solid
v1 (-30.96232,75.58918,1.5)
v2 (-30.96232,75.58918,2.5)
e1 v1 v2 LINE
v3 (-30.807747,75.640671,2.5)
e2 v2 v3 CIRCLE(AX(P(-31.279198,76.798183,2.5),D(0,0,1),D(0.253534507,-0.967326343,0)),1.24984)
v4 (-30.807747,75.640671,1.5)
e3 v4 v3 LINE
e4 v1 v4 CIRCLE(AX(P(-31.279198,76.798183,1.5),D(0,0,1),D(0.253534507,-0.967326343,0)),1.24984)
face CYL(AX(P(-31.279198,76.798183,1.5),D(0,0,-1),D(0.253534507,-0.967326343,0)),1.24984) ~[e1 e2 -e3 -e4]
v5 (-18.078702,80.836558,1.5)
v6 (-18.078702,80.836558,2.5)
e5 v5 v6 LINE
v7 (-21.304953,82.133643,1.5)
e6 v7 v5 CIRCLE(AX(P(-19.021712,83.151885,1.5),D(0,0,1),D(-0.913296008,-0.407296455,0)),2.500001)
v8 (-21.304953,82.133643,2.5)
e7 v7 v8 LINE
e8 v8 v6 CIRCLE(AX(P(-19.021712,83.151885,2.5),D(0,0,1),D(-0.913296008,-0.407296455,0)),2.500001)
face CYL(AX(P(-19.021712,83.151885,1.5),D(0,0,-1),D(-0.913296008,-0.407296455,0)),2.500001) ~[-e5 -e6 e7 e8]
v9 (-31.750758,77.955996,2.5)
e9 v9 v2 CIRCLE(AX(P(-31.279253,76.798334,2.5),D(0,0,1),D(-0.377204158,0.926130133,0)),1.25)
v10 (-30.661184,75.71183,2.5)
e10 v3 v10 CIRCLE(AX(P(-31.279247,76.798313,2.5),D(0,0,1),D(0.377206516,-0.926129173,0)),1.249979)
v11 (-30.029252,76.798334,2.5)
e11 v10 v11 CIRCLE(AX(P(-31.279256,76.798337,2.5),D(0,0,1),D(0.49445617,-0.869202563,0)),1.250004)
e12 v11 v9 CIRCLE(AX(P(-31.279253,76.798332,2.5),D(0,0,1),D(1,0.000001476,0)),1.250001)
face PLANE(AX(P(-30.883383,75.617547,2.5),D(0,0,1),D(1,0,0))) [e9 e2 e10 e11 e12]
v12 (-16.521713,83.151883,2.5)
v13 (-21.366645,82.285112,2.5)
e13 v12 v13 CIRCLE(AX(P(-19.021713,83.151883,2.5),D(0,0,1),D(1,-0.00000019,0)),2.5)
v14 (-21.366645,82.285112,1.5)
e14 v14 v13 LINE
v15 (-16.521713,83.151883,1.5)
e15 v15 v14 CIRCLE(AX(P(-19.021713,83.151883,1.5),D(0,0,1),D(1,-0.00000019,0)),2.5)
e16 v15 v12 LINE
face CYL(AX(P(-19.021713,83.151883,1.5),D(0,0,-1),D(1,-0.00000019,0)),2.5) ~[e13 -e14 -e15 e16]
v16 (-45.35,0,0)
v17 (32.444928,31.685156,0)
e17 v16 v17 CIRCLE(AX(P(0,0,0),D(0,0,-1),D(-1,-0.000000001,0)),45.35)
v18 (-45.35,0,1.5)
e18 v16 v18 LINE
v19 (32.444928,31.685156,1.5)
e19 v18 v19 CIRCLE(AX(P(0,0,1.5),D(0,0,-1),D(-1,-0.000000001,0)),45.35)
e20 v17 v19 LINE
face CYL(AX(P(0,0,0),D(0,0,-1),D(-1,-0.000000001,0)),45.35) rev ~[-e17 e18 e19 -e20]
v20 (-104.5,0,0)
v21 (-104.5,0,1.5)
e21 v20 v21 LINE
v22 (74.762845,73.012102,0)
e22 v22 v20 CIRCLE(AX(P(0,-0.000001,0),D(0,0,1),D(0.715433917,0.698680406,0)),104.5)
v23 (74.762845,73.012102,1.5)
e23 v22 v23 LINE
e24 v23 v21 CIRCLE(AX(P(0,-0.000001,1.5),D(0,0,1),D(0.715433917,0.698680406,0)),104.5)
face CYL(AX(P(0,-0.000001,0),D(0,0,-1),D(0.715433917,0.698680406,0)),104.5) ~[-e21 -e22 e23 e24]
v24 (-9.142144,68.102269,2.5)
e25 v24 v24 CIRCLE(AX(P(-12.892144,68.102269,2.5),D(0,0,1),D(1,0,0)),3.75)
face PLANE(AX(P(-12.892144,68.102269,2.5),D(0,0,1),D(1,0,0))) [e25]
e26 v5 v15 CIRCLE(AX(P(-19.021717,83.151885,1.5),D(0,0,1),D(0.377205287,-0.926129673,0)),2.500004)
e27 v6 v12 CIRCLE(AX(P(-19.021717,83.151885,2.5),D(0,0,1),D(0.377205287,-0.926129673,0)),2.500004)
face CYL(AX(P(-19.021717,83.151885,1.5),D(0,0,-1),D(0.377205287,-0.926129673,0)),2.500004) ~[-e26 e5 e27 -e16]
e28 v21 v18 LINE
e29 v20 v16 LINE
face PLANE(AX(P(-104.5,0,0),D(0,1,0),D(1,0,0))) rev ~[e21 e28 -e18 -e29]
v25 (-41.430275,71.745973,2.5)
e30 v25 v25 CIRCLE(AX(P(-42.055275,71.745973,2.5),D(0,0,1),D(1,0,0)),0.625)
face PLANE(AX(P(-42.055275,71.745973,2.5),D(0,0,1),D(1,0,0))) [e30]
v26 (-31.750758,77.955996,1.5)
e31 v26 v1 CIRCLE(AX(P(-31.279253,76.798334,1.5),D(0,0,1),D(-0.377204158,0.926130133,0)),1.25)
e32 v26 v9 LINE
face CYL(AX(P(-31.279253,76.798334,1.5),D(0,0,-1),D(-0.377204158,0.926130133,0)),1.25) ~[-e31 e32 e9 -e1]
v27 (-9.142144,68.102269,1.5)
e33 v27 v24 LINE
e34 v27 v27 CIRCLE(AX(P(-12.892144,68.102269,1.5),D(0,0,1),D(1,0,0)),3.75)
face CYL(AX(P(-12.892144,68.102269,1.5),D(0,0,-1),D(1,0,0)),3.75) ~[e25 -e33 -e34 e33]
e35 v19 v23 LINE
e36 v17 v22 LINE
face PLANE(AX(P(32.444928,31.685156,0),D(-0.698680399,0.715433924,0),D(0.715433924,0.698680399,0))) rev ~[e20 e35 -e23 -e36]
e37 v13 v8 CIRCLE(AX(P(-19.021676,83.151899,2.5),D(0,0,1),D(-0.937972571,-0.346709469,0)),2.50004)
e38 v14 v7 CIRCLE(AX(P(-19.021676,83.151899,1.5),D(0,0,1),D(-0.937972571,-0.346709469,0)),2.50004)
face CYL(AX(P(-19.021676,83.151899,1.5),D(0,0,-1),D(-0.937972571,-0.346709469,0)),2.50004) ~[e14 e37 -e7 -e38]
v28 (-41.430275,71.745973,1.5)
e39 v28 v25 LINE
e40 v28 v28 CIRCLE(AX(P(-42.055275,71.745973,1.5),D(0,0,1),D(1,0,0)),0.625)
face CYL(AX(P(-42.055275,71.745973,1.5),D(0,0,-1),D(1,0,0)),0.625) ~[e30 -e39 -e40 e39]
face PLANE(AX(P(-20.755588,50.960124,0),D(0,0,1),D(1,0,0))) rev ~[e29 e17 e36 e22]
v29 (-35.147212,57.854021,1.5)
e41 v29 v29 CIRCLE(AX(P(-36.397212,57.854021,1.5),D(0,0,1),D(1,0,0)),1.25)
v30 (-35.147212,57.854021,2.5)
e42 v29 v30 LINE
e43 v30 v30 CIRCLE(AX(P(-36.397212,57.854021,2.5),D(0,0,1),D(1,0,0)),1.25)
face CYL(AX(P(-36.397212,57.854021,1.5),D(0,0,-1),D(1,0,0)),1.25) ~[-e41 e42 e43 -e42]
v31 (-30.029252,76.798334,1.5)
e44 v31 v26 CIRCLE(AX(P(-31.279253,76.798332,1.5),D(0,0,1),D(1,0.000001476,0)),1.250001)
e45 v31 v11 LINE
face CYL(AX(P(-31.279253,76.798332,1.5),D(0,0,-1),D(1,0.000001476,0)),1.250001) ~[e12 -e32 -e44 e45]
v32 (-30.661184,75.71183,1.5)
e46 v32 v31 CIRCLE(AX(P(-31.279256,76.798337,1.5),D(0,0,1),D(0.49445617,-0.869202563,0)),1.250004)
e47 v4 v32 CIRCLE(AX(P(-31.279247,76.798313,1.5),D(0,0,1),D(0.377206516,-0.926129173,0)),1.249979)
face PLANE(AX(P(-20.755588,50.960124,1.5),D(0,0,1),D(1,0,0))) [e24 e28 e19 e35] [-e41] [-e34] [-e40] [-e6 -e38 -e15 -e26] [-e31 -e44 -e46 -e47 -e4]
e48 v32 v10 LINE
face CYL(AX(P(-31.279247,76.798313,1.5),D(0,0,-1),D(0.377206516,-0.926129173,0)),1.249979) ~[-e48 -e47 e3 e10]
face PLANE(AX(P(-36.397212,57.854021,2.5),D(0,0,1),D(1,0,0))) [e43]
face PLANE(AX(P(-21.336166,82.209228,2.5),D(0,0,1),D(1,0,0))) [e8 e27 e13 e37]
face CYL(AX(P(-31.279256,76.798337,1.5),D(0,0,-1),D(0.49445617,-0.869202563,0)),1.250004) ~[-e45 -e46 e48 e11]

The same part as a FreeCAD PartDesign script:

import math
import FreeCAD as App
import Part
import Sketcher

V = App.Vector
Q = App.Units.Quantity

doc = App.newDocument("Part")
params = doc.addObject("Spreadsheet::Sheet", "Params")
for row, (alias, value) in enumerate([
    ("sketch1_radius", "104.5 mm"),
    ("sketch1_radius2", "45.35 mm"),
    ("pad1_length", "1.5 mm"),
    ("sketch2_diameter", "2.5 mm"),
    ("sketch2_diameter2", "7.5 mm"),
    ("sketch2_radius", "2.500001 mm"),
    ("sketch2_diameter3", "1.25 mm"),
    ("sketch2_radius2", "1.250001 mm"),
    ("pad2_length", "1 mm"),
], start=1):
    params.set(f"A{row}", alias)
    params.set(f"B{row}", "=" + value)
    params.setAlias(f"B{row}", alias)

body = doc.addObject("PartDesign::Body", "Body")

sketch1 = body.newObject("Sketcher::SketchObject", "Sketch")
sketch1.AttachmentSupport = (doc.getObject("XY_Plane"), [""])
sketch1.MapMode = "FlatFace"
sketch1.addGeometry(Part.LineSegment(V(32.444928, 31.685156, 0), V(74.762845, 73.012102, 0)), False)
sketch1.addGeometry(Part.ArcOfCircle(Part.Circle(V(0, -0.000001, 0), V(0, 0, 1), 104.5), math.radians(44.321228), math.radians(180)), False)
sketch1.addGeometry(Part.LineSegment(V(-104.5, 0, 0), V(-45.35, 0, 0)), False)
sketch1.addGeometry(Part.ArcOfCircle(Part.Circle(V(0, 0, 0), V(0, 0, 1), 45.35), math.radians(44.321228), math.radians(180)), False)
sketch1.addConstraint(Sketcher.Constraint("Coincident", 0, 2, 1, 1))
sketch1.addConstraint(Sketcher.Constraint("Coincident", 1, 2, 2, 1))
sketch1.addConstraint(Sketcher.Constraint("Coincident", 2, 2, 3, 2))
sketch1.addConstraint(Sketcher.Constraint("Coincident", 3, 1, 0, 1))
sketch1.addConstraint(Sketcher.Constraint("Horizontal", 2))
sketch1.addConstraint(Sketcher.Constraint("Coincident", 1, 3, -1, 1))
sketch1.addConstraint(Sketcher.Constraint("Coincident", 3, 3, -1, 1))
sketch1.addConstraint(Sketcher.Constraint("PointOnObject", 1, 2, -1))
sketch1.addConstraint(Sketcher.Constraint("Radius", 1, Q("104.5 mm")))
sketch1.addConstraint(Sketcher.Constraint("Radius", 3, Q("45.35 mm")))
sketch1.addConstraint(Sketcher.Constraint("DistanceY", -1, 1, 0, 2, Q("73.012102 mm")))
sketch1.addConstraint(Sketcher.Constraint("DistanceX", -1, 1, 3, 1, Q("32.444928 mm")))
sketch1.setExpression("Constraints[8]", "Params.sketch1_radius")
sketch1.setExpression("Constraints[9]", "Params.sketch1_radius2")
pad1 = body.newObject("PartDesign::Pad", "Pad")
pad1.Profile = sketch1
pad1.setExpression("Length", "Params.pad1_length")

sketch2 = body.newObject("Sketcher::SketchObject", "Sketch001")
sketch2.AttachmentSupport = (doc.getObject("XY_Plane"), [""])
sketch2.MapMode = "FlatFace"
sketch2.AttachmentOffset = App.Placement(V(0, 0, 1.5), App.Rotation())
sketch2.addGeometry(Part.ArcOfCircle(Part.Circle(V(-31.279198, 76.798183, 0), V(0, 0, 1), 1.24984), math.radians(-75.313235), math.radians(-67.839109)), False)
sketch2.addGeometry(Part.ArcOfCircle(Part.Circle(V(-31.279247, 76.798313, 0), V(0, 0, 1), 1.249979), math.radians(-67.839245), math.radians(-60.365923)), False)
sketch2.addGeometry(Part.ArcOfCircle(Part.Circle(V(-31.279256, 76.798337, 0), V(0, 0, 1), 1.250004), math.radians(-60.366104), math.radians(-0.000138)), False)
sketch2.addGeometry(Part.ArcOfCircle(Part.Circle(V(-31.279253, 76.798332, 0), V(0, 0, 1), 1.250001), math.radians(0.000085), math.radians(112.16058)), False)
sketch2.addGeometry(Part.ArcOfCircle(Part.Circle(V(-31.279253, 76.798334, 0), V(0, 0, 1), 1.25), math.radians(112.160609), math.radians(284.687471)), False)
sketch2.addGeometry(Part.ArcOfCircle(Part.Circle(V(-19.021676, 83.151899, 0), V(0, 0, 1), 2.50004), math.radians(-159.713817), math.radians(-155.964907)), False)
sketch2.addGeometry(Part.ArcOfCircle(Part.Circle(V(-19.021712, 83.151885, 0), V(0, 0, 1), 2.500001), math.radians(-155.964885), math.radians(-67.839408)), False)
sketch2.addGeometry(Part.ArcOfCircle(Part.Circle(V(-19.021717, 83.151885, 0), V(0, 0, 1), 2.500004), math.radians(-67.839321), math.radians(-0.000057)), False)
sketch2.addGeometry(Part.ArcOfCircle(Part.Circle(V(-19.021713, 83.151883, 0), V(0, 0, 1), 2.5), math.radians(-0.000011), math.radians(200.28613)), False)
sketch2.addGeometry(Part.Circle(V(-42.055275, 71.745973, 0), V(0, 0, 1), 0.625), False)
sketch2.addGeometry(Part.Circle(V(-36.397212, 57.854021, 0), V(0, 0, 1), 1.25), False)
sketch2.addGeometry(Part.Circle(V(-12.892144, 68.102269, 0), V(0, 0, 1), 3.75), False)
sketch2.addConstraint(Sketcher.Constraint("Coincident", 0, 2, 1, 1))
sketch2.addConstraint(Sketcher.Constraint("Coincident", 1, 2, 2, 1))
sketch2.addConstraint(Sketcher.Constraint("Coincident", 2, 2, 3, 1))
sketch2.addConstraint(Sketcher.Constraint("Coincident", 3, 2, 4, 1))
sketch2.addConstraint(Sketcher.Constraint("Coincident", 4, 2, 0, 1))
sketch2.addConstraint(Sketcher.Constraint("Coincident", 5, 2, 6, 1))
sketch2.addConstraint(Sketcher.Constraint("Coincident", 6, 2, 7, 1))
sketch2.addConstraint(Sketcher.Constraint("Coincident", 7, 2, 8, 1))
sketch2.addConstraint(Sketcher.Constraint("Coincident", 8, 2, 5, 1))
sketch2.addConstraint(Sketcher.Constraint("Coincident", 3, 3, 2, 3))
sketch2.addConstraint(Sketcher.Constraint("Coincident", 4, 3, 2, 3))
sketch2.addConstraint(Sketcher.Constraint("Coincident", 7, 3, 6, 3))
sketch2.addConstraint(Sketcher.Constraint("Coincident", 8, 3, 6, 3))
sketch2.addConstraint(Sketcher.Constraint("Diameter", 10, Q("2.5 mm")))
sketch2.addConstraint(Sketcher.Constraint("Diameter", 11, Q("7.5 mm")))
sketch2.addConstraint(Sketcher.Constraint("Radius", 6, Q("2.500001 mm")))
sketch2.addConstraint(Sketcher.Constraint("Diameter", 9, Q("1.25 mm")))
sketch2.addConstraint(Sketcher.Constraint("Radius", 3, Q("1.250001 mm")))
sketch2.addConstraint(Sketcher.Constraint("Radius", 0, Q("1.24984 mm")))
sketch2.addConstraint(Sketcher.Constraint("Radius", 1, Q("1.249979 mm")))
sketch2.addConstraint(Sketcher.Constraint("Radius", 5, Q("2.50004 mm")))
sketch2.addConstraint(Sketcher.Constraint("DistanceY", -1, 1, 5, 3, Q("83.151899 mm")))
sketch2.addConstraint(Sketcher.Constraint("DistanceX", 1, 3, 0, 2, Q("0.4715 mm")))
sketch2.addConstraint(Sketcher.Constraint("DistanceX", 3, 2, 2, 3, Q("0.471502 mm")))
sketch2.addConstraint(Sketcher.Constraint("DistanceX", 2, 2, 5, 2, Q("8.724299 mm")))
sketch2.addConstraint(Sketcher.Constraint("DistanceY", -1, 1, 10, 3, Q("57.854021 mm")))
sketch2.addConstraint(Sketcher.Constraint("DistanceY", -1, 1, 11, 3, Q("68.102269 mm")))
sketch2.addConstraint(Sketcher.Constraint("DistanceY", -1, 1, 0, 2, Q("75.640671 mm")))
sketch2.addConstraint(Sketcher.Constraint("DistanceY", -1, 1, 1, 2, Q("75.71183 mm")))
sketch2.addConstraint(Sketcher.Constraint("DistanceX", 3, 2, -1, 1, Q("31.750758 mm")))
sketch2.addConstraint(Sketcher.Constraint("DistanceX", 4, 2, -1, 1, Q("30.96232 mm")))
sketch2.addConstraint(Sketcher.Constraint("DistanceY", -1, 1, 4, 2, Q("75.58918 mm")))
sketch2.addConstraint(Sketcher.Constraint("DistanceY", -1, 1, 6, 2, Q("80.836558 mm")))
sketch2.addConstraint(Sketcher.Constraint("DistanceY", -1, 1, 8, 2, Q("82.285112 mm")))
sketch2.addConstraint(Sketcher.Constraint("DistanceX", 2, 3, 5, 3, Q("12.25758 mm")))
sketch2.addConstraint(Sketcher.Constraint("DistanceY", 9, 3, 0, 3, Q("5.05221 mm")))
sketch2.addConstraint(Sketcher.Constraint("DistanceX", 9, 3, 2, 3, Q("10.776019 mm")))
sketch2.addConstraint(Sketcher.Constraint("DistanceX", 10, 3, 3, 3, Q("5.117959 mm")))
sketch2.addConstraint(Sketcher.Constraint("DistanceX", 8, 3, 11, 3, Q("6.129569 mm")))
sketch2.addConstraint(Sketcher.Constraint("DistanceY", 0, 3, 2, 2, Q("0.000151 mm")))
sketch2.addConstraint(Sketcher.Constraint("DistanceY", -1, 1, 7, 2, Q("83.151883 mm")))
sketch2.setExpression("Constraints[13]", "Params.sketch2_diameter")
sketch2.setExpression("Constraints[14]", "Params.sketch2_diameter2")
sketch2.setExpression("Constraints[15]", "Params.sketch2_radius")
sketch2.setExpression("Constraints[16]", "Params.sketch2_diameter3")
sketch2.setExpression("Constraints[17]", "Params.sketch2_radius2")
pad2 = body.newObject("PartDesign::Pad", "Pad001")
pad2.Profile = sketch2
pad2.setExpression("Length", "Params.pad2_length")

doc.recompute()
